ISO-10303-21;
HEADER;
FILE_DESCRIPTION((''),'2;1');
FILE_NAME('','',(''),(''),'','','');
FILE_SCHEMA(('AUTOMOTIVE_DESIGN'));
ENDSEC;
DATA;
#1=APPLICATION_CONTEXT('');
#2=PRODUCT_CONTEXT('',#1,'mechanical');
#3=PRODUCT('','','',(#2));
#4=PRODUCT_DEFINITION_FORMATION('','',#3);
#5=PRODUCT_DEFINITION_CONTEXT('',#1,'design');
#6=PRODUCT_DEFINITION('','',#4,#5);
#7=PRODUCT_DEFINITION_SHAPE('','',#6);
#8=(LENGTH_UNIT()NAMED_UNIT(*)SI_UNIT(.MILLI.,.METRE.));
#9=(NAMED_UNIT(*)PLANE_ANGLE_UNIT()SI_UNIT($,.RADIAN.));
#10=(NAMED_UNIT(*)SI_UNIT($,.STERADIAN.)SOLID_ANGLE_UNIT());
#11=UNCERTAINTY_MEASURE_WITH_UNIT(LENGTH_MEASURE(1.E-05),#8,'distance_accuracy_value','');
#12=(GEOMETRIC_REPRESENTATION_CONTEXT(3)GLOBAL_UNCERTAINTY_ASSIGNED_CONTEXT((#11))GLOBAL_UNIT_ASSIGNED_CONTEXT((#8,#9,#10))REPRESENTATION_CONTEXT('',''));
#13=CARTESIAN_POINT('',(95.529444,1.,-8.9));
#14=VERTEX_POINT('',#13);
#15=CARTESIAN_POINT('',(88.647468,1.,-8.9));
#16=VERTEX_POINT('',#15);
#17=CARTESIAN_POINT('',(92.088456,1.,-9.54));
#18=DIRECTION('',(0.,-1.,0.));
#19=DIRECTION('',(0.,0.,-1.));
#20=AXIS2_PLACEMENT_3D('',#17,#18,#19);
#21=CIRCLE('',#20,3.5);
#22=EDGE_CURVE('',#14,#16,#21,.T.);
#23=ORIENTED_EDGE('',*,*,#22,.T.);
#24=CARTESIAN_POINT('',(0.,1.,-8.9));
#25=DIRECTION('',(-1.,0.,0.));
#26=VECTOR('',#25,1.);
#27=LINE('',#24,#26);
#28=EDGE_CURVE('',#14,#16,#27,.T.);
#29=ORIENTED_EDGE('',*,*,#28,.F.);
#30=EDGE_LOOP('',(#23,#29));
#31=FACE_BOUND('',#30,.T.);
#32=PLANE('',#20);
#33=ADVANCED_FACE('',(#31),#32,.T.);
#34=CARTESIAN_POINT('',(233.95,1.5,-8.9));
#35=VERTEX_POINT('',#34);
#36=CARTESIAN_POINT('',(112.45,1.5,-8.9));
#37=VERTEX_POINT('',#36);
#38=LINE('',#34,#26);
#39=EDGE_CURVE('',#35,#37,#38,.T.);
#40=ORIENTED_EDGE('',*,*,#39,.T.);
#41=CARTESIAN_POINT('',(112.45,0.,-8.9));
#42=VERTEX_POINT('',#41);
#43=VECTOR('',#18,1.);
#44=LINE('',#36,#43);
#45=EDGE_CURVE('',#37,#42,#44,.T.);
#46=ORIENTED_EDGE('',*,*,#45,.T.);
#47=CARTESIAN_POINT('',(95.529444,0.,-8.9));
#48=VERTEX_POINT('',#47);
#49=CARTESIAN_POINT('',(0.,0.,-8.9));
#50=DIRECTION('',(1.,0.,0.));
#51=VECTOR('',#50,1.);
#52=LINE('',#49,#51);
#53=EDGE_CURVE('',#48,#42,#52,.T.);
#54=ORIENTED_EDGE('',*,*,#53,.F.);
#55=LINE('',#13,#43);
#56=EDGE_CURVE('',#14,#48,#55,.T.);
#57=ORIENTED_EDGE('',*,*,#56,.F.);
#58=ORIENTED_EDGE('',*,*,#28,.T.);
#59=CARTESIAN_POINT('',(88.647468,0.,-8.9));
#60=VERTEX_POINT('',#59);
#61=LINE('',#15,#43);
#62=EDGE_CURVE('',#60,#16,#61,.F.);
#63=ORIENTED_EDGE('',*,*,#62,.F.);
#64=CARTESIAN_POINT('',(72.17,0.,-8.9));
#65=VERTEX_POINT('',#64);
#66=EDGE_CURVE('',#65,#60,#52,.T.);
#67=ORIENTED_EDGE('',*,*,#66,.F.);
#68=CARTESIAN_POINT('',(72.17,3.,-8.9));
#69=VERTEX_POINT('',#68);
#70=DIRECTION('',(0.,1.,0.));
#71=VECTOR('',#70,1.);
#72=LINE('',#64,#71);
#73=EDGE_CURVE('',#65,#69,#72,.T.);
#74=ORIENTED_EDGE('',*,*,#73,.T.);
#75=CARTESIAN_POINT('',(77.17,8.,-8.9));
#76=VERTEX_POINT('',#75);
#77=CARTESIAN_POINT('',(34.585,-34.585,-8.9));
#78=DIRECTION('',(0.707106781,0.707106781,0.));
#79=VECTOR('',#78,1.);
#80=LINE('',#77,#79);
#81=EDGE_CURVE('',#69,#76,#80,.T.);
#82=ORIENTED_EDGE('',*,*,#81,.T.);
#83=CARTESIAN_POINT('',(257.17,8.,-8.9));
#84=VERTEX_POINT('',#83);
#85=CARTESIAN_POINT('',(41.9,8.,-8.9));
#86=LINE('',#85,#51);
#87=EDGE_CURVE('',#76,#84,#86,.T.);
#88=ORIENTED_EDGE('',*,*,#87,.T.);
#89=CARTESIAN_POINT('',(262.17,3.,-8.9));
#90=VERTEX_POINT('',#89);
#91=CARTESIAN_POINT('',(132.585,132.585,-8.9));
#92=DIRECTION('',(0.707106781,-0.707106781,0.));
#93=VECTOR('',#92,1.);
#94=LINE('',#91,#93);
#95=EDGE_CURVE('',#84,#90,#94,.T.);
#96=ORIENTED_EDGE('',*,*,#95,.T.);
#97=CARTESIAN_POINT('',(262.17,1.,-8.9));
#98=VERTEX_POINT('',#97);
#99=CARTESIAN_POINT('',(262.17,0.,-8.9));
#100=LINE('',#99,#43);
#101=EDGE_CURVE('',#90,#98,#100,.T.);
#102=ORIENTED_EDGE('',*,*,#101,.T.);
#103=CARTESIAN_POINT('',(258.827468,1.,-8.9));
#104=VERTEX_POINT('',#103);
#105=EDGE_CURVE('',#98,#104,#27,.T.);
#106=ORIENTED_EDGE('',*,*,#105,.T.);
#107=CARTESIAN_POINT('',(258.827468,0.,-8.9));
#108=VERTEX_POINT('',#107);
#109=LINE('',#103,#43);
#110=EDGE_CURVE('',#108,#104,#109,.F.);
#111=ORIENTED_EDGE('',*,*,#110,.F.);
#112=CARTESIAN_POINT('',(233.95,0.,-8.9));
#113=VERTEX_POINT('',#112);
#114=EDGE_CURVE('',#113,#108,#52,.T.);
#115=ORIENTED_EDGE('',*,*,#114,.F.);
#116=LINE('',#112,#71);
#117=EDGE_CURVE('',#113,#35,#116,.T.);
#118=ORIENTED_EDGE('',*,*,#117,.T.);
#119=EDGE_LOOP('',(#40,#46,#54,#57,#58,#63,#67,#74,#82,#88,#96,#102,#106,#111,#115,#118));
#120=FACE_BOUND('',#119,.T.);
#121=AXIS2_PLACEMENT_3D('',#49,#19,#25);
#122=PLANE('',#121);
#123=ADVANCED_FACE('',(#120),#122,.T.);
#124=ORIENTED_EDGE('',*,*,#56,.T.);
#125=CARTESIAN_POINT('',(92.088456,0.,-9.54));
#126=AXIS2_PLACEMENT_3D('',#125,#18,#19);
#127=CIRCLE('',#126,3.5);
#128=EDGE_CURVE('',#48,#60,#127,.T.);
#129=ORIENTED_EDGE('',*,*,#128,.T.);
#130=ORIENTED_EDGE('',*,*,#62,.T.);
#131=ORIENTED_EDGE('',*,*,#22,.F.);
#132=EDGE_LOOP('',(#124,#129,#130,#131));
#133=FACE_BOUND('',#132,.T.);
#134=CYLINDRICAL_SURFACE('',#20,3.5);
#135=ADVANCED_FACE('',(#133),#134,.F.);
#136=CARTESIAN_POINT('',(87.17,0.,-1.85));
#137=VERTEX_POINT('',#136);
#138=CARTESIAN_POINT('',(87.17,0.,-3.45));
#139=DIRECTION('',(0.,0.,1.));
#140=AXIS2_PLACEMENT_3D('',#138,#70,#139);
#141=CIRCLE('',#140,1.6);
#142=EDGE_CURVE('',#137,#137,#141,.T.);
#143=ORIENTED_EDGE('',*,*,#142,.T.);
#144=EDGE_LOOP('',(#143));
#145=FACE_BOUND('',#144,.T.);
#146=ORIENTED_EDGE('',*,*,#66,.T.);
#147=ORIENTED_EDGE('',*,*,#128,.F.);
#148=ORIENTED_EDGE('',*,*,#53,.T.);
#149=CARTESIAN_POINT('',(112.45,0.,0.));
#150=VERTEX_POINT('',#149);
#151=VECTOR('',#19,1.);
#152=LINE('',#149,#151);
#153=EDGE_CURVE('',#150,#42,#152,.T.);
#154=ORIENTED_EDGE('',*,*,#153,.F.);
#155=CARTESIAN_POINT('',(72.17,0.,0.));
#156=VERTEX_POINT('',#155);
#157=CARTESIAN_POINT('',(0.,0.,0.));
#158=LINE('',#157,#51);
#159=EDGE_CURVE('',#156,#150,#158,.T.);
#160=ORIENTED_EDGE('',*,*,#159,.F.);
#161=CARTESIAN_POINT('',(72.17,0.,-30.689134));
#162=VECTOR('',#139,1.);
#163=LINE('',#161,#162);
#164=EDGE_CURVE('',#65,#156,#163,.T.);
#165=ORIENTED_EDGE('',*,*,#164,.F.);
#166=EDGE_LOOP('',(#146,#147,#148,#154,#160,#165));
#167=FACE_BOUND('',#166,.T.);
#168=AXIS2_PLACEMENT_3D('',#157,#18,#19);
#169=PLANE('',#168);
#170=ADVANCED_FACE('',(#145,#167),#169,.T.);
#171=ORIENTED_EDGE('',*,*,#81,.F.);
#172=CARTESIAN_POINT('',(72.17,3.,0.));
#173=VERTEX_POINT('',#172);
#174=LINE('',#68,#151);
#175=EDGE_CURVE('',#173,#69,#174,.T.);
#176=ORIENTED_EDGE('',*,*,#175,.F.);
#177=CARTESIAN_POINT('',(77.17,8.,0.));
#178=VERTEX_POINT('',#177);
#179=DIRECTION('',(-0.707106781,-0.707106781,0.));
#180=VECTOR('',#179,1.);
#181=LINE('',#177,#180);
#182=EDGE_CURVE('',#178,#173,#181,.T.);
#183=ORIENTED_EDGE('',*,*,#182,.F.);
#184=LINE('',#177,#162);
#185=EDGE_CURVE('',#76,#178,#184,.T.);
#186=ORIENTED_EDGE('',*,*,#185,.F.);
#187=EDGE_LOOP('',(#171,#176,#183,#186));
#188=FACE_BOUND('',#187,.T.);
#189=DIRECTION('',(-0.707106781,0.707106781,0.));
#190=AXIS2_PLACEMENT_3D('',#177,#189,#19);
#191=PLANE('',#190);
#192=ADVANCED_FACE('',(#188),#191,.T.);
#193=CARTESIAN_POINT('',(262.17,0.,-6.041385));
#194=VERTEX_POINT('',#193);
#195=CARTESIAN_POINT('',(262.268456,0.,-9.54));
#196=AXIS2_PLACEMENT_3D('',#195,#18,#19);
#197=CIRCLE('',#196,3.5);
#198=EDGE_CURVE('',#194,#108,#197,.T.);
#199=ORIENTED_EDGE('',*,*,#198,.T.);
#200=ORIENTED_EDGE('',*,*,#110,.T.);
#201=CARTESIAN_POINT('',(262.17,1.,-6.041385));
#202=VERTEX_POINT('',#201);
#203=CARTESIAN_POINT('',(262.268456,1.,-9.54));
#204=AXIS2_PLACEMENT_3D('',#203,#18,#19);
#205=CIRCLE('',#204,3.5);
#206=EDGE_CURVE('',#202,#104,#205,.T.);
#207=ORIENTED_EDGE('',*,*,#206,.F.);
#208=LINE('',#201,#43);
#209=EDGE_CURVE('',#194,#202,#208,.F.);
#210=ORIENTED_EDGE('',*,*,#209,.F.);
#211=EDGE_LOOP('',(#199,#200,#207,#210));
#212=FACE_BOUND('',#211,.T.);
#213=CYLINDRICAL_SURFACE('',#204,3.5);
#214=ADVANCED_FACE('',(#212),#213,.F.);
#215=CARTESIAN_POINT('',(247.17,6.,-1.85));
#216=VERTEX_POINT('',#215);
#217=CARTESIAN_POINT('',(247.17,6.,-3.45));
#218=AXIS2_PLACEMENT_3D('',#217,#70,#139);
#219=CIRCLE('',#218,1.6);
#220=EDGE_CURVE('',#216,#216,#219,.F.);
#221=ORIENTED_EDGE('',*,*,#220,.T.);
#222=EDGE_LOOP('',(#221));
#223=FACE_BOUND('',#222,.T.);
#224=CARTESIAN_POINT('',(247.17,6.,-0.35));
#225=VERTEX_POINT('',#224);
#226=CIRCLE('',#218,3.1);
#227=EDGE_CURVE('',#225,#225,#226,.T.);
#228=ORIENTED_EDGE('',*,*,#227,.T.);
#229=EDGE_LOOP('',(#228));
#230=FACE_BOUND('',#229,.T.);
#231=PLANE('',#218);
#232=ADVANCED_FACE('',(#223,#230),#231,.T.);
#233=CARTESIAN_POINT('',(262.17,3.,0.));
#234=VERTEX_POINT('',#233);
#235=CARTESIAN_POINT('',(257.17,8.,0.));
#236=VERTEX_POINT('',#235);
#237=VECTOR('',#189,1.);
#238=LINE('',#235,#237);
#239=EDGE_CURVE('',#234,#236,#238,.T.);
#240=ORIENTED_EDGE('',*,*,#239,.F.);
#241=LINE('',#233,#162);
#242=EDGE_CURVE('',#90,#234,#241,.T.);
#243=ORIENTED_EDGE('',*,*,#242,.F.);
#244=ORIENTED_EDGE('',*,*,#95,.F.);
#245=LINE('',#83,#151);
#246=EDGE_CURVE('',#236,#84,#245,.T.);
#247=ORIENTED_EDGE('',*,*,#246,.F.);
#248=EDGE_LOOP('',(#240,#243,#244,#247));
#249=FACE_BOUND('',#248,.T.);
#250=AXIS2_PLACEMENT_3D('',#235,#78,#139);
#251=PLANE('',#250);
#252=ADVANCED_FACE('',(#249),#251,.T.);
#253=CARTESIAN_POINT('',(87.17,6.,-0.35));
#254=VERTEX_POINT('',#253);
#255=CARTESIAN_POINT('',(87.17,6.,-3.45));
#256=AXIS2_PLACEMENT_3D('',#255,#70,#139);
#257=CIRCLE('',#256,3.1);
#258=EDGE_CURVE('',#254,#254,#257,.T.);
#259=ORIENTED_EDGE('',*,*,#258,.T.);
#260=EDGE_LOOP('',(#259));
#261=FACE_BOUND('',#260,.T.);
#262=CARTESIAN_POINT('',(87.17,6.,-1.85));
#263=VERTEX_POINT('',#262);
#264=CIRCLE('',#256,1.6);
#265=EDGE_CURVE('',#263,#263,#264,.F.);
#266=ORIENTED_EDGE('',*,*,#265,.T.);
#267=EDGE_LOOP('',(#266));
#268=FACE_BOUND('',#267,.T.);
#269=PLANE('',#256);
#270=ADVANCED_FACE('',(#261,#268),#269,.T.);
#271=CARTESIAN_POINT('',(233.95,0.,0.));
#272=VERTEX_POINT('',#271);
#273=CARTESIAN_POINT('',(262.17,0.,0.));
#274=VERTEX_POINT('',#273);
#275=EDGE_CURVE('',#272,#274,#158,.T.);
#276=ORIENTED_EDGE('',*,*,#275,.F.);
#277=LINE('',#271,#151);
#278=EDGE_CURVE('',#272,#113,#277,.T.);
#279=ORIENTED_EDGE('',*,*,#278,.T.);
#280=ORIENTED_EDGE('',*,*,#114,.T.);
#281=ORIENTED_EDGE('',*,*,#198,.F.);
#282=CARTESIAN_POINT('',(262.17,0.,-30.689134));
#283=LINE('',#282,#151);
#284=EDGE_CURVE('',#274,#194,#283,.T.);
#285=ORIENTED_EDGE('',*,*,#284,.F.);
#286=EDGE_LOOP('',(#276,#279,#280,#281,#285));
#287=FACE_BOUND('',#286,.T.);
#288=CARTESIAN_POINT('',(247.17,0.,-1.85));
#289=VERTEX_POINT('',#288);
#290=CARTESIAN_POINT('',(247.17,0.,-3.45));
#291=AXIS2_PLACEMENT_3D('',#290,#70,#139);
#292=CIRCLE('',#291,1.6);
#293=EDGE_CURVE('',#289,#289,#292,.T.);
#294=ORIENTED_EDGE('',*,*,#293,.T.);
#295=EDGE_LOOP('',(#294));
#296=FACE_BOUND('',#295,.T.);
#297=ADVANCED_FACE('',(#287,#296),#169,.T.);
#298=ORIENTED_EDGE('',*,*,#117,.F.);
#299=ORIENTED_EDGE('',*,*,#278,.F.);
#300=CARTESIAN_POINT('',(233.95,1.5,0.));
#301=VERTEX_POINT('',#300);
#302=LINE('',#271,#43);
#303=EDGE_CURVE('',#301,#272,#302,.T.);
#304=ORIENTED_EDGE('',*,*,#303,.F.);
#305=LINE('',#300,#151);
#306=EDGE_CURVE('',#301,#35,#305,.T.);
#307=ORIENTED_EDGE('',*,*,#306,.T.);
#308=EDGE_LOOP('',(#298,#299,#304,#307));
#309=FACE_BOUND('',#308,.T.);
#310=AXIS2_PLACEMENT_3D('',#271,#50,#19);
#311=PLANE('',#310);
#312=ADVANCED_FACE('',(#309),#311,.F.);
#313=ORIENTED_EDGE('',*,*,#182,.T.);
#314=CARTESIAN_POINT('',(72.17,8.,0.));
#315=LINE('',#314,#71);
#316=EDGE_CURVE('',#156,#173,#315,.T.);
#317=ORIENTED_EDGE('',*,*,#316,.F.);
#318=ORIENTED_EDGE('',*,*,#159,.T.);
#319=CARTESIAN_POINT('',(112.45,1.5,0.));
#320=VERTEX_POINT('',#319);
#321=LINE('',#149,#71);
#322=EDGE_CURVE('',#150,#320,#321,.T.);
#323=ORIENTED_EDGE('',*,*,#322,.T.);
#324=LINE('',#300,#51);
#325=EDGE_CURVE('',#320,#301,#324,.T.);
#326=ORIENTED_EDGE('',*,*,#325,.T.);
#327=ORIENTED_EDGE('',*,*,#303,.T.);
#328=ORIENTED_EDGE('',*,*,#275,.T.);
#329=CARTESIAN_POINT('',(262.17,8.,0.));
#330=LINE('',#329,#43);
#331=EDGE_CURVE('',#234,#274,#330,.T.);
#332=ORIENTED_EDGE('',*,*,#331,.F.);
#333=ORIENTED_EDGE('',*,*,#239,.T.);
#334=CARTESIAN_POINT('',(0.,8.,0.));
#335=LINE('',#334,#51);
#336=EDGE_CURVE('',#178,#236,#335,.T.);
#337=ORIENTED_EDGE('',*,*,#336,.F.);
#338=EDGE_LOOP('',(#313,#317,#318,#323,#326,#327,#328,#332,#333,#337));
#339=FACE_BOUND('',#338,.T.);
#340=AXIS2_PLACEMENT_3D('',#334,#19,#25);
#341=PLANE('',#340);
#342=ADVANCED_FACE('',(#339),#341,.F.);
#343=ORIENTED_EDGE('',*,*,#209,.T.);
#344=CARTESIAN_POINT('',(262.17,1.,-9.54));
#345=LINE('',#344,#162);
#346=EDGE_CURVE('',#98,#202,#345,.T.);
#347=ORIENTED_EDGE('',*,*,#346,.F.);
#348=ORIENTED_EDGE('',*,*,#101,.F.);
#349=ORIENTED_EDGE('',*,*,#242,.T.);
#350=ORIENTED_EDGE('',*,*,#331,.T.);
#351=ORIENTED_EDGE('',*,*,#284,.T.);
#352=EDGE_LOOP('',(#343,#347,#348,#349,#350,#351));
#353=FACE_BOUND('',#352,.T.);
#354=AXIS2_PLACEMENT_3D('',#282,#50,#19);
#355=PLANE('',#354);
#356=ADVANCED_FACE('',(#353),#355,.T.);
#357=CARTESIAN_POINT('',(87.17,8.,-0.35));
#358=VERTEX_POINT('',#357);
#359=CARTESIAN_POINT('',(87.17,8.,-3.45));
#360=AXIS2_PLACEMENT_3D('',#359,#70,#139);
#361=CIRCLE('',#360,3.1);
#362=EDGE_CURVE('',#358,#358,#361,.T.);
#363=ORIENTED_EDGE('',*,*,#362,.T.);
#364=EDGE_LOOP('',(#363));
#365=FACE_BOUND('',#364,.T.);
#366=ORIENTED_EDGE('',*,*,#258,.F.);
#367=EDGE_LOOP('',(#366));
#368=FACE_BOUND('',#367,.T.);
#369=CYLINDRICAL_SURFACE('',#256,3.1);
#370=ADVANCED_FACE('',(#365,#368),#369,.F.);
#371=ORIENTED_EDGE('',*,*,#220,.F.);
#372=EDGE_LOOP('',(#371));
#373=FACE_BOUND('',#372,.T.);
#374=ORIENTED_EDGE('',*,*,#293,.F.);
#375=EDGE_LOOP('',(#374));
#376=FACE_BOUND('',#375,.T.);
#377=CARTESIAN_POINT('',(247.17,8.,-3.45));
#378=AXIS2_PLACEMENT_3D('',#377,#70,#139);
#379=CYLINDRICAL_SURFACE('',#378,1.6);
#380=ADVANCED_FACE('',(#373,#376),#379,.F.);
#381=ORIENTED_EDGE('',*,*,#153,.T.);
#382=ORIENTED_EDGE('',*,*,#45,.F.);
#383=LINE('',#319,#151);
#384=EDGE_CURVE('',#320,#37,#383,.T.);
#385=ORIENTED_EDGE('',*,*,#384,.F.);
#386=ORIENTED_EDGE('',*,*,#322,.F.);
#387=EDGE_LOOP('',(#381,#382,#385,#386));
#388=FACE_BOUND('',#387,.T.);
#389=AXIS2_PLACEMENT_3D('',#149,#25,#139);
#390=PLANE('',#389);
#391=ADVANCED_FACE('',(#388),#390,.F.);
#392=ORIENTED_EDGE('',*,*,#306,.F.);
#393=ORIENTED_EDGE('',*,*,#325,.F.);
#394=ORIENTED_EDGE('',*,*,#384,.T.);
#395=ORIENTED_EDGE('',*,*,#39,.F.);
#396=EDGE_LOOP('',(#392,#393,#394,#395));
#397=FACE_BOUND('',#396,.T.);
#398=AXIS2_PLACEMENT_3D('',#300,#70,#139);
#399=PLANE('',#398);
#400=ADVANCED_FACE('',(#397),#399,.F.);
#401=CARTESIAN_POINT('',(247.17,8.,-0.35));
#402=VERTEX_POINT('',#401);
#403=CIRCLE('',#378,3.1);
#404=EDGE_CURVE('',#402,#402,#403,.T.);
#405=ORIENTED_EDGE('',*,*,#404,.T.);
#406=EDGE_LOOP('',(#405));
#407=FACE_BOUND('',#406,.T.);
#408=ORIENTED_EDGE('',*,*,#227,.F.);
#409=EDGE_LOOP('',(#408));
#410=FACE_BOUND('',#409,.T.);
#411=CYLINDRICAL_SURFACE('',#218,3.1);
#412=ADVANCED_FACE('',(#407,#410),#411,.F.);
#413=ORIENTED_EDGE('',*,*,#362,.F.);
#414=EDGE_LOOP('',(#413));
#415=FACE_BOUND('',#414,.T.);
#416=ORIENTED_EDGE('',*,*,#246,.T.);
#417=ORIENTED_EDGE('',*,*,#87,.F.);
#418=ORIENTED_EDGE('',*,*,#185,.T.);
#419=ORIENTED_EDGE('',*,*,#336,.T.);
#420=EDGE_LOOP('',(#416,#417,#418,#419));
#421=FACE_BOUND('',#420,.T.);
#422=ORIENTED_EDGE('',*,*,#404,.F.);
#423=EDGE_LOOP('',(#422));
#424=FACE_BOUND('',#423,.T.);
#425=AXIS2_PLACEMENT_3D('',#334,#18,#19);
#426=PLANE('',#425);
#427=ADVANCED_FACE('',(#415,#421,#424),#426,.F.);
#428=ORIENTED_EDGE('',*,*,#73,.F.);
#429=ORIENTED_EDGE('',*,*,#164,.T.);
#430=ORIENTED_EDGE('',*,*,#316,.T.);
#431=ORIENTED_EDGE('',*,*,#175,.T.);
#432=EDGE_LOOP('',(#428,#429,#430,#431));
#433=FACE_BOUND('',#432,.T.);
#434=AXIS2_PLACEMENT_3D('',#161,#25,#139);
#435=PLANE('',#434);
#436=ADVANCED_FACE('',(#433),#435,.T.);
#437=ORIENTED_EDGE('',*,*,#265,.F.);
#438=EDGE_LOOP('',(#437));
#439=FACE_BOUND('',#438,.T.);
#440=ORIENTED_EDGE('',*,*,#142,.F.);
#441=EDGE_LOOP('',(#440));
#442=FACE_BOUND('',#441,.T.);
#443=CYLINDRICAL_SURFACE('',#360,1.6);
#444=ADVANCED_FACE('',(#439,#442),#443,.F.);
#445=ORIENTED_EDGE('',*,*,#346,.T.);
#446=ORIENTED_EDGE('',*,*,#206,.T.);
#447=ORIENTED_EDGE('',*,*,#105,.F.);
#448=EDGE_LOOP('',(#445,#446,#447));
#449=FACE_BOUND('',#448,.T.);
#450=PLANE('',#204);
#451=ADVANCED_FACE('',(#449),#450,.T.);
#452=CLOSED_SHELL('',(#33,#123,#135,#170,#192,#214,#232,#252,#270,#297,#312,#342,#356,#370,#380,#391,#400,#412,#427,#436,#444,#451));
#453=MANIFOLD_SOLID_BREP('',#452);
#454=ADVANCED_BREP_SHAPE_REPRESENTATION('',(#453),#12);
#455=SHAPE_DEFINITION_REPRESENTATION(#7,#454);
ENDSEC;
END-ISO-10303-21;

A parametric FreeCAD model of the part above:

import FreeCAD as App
import Part
import Sketcher


def edges_at(feature, points):
    """Names of the edges that pass closest to the given points."""
    edges = feature.Shape.Edges
    near = lambda p: min(range(len(edges)), key=lambda i: edges[i].distToShape(Part.Vertex(*p))[0])
    return sorted({f"Edge{near(p) + 1}" for p in points})

doc = App.newDocument("Part")
body = doc.addObject("PartDesign::Body", "Body")

sketch1 = body.newObject("Sketcher::SketchObject", "Sketch")
sketch1.AttachmentSupport = (doc.getObject("XZ_Plane"), [""])
sketch1.MapMode = "FlatFace"
sketch1.addGeometry([
    Part.LineSegment(App.Vector(0, -117, 0), App.Vector(0, 0, 0)),
    Part.LineSegment(App.Vector(0, 0, 0), App.Vector(337, 0, 0)),
    Part.LineSegment(App.Vector(337, 0, 0), App.Vector(337, -117, 0)),
    Part.LineSegment(App.Vector(337, -117, 0), App.Vector(0, -117, 0)),
    Part.LineSegment(App.Vector(331, -7, 0), App.Vector(7, -7, 0)),
    Part.LineSegment(App.Vector(7, -7, 0), App.Vector(7, -110, 0)),
    Part.LineSegment(App.Vector(7, -110, 0), App.Vector(331, -110, 0)),
    Part.LineSegment(App.Vector(331, -110, 0), App.Vector(331, -7, 0)),
], False)
sketch1.addConstraint([
    Sketcher.Constraint("Coincident", 0, 2, 1, 1),
    Sketcher.Constraint("Coincident", 1, 2, 2, 1),
    Sketcher.Constraint("Coincident", 2, 2, 3, 1),
    Sketcher.Constraint("Coincident", 3, 2, 0, 1),
    Sketcher.Constraint("Coincident", 4, 2, 5, 1),
    Sketcher.Constraint("Coincident", 5, 2, 6, 1),
    Sketcher.Constraint("Coincident", 6, 2, 7, 1),
    Sketcher.Constraint("Coincident", 7, 2, 4, 1),
    Sketcher.Constraint("Vertical", 0),
    Sketcher.Constraint("Horizontal", 1),
    Sketcher.Constraint("Vertical", 2),
    Sketcher.Constraint("Horizontal", 3),
    Sketcher.Constraint("Horizontal", 4),
    Sketcher.Constraint("Vertical", 5),
    Sketcher.Constraint("Horizontal", 6),
    Sketcher.Constraint("Vertical", 7),
    Sketcher.Constraint("Coincident", 0, 2, -1, 1),
    Sketcher.Constraint("DistanceX", 1, 1, 1, 2, 337.35),
    Sketcher.Constraint("DistanceX", 4, 2, 4, 1, 324.05),
    Sketcher.Constraint("DistanceY", 0, 1, 0, 2, 116.87),
    Sketcher.Constraint("DistanceY", 5, 2, 5, 1, 103.07),
    Sketcher.Constraint("DistanceX", -1, 1, 4, 2, 6.9),
    Sketcher.Constraint("DistanceY", 4, 2, -1, 1, 6.9),
])
pad1 = body.newObject("PartDesign::Pad", "Pad")
pad1.Profile = sketch1
pad1.Length = 8
pad1.Reversed = True
doc.recompute()

fillet = body.newObject("PartDesign::Fillet", "Fillet")
fillet.Base = (pad1, edges_at(pad1, [
    (0, 4, -116.87),
    (337.35, 4, -116.87),
    (337.35, 4, 0),
    (0, 4, 0),
]))
fillet.Radius = 5

sketch2 = body.newObject("Sketcher::SketchObject", "Sketch001")
sketch2.AttachmentSupport = (doc.getObject("XZ_Plane"), [""])
sketch2.MapMode = "FlatFace"
sketch2.AttachmentOffset = App.Placement(App.Vector(0, 0, -8), App.Rotation())
sketch2.addGeometry([
    Part.Circle(App.Vector(3.5, -98.4, 0), App.Vector(0, 0, 1), 1.6),
    Part.Circle(App.Vector(87.2, -113.4, 0), App.Vector(0, 0, 1), 1.6),
    Part.Circle(App.Vector(247.2, -113.4, 0), App.Vector(0, 0, 1), 1.6),
    Part.Circle(App.Vector(334.1, -98.4, 0), App.Vector(0, 0, 1), 1.6),
    Part.Circle(App.Vector(334.1, -18.4, 0), App.Vector(0, 0, 1), 1.6),
    Part.Circle(App.Vector(247.2, -3.5, 0), App.Vector(0, 0, 1), 1.6),
    Part.Circle(App.Vector(87.2, -3.5, 0), App.Vector(0, 0, 1), 1.6),
    Part.Circle(App.Vector(3.5, -18.4, 0), App.Vector(0, 0, 1), 1.6),
], False)
sketch2.addConstraint([
    Sketcher.Constraint("Equal", 0, 1),
    Sketcher.Constraint("Equal", 1, 2),
    Sketcher.Constraint("Equal", 2, 3),
    Sketcher.Constraint("Equal", 3, 4),
    Sketcher.Constraint("Equal", 4, 5),
    Sketcher.Constraint("Equal", 5, 6),
    Sketcher.Constraint("Equal", 6, 7),
    Sketcher.Constraint("Horizontal", 1, 3, 2, 3),
    Sketcher.Constraint("Horizontal", 0, 3, 3, 3),
    Sketcher.Constraint("Horizontal", 5, 3, 6, 3),
    Sketcher.Constraint("Horizontal", 4, 3, 7, 3),
    Sketcher.Constraint("Vertical", 3, 3, 4, 3),
    Sketcher.Constraint("Vertical", 2, 3, 5, 3),
    Sketcher.Constraint("Vertical", 1, 3, 6, 3),
    Sketcher.Constraint("Vertical", 0, 3, 7, 3),
    Sketcher.Constraint("Diameter", 0, 3.2),
    Sketcher.Constraint("DistanceX", 1, 3, 2, 3, 160.0),
    Sketcher.Constraint("DistanceY", 3, 3, 4, 3, 80.0),
    Sketcher.Constraint("DistanceX", 0, 3, 3, 3, 330.7),
    Sketcher.Constraint("DistanceX", -1, 1, 0, 3, 3.45),
    Sketcher.Constraint("DistanceX", -1, 1, 1, 3, 87.17),
    Sketcher.Constraint("DistanceY", 1, 3, -1, 1, 113.42),
    Sketcher.Constraint("DistanceY", 5, 3, -1, 1, 3.45),
    Sketcher.Constraint("DistanceY", 0, 3, -1, 1, 98.435),
])
doc.recompute()
hole = body.newObject("PartDesign::Hole", "Hole")
hole.Profile = sketch2
hole.ThreadType = "None"
hole.Diameter = 3.2
hole.DepthType = "ThroughAll"
hole.Reversed = True

sketch3 = body.newObject("Sketcher::SketchObject", "Sketch002")
sketch3.AttachmentSupport = (doc.getObject("XY_Plane"), [""])
sketch3.MapMode = "FlatFace"
sketch3.AttachmentOffset = App.Placement(App.Vector(0, 0, -109.97), App.Rotation())
sketch3.addGeometry([
    Part.LineSegment(App.Vector(41.9, 1.5, 0), App.Vector(41.9, 0, 0)),
    Part.LineSegment(App.Vector(41.9, 0, 0), App.Vector(73.9, 0, 0)),
    Part.LineSegment(App.Vector(73.9, 0, 0), App.Vector(73.9, 1.5, 0)),
    Part.LineSegment(App.Vector(73.9, 1.5, 0), App.Vector(41.9, 1.5, 0)),
], False)
sketch3.addConstraint([
    Sketcher.Constraint("Coincident", 0, 2, 1, 1),
    Sketcher.Constraint("Coincident", 1, 2, 2, 1),
    Sketcher.Constraint("Coincident", 2, 2, 3, 1),
    Sketcher.Constraint("Coincident", 3, 2, 0, 1),
    Sketcher.Constraint("Vertical", 0),
    Sketcher.Constraint("Horizontal", 1),
    Sketcher.Constraint("Vertical", 2),
    Sketcher.Constraint("Horizontal", 3),
    Sketcher.Constraint("PointOnObject", 0, 2, -1),
    Sketcher.Constraint("DistanceX", 1, 1, 1, 2, 32.0),
    Sketcher.Constraint("DistanceY", 0, 2, 0, 1, 1.5),
    Sketcher.Constraint("DistanceX", -1, 1, 0, 2, 41.9),
])
pocket1 = body.newObject("PartDesign::Pocket", "Pocket")
pocket1.Profile = sketch3
pocket1.Type = "ThroughAll"

sketch4 = body.newObject("Sketcher::SketchObject", "Sketch003")
sketch4.AttachmentSupport = (doc.getObject("XY_Plane"), [""])
sketch4.MapMode = "FlatFace"
sketch4.AttachmentOffset = App.Placement(App.Vector(0, 0, -109.97), App.Rotation())
sketch4.addGeometry([
    Part.LineSegment(App.Vector(38.9, 8, 0), App.Vector(38.9, 0, 0)),
    Part.LineSegment(App.Vector(38.9, 0, 0), App.Vector(41.9, 0, 0)),
    Part.LineSegment(App.Vector(41.9, 0, 0), App.Vector(41.9, 8, 0)),
    Part.LineSegment(App.Vector(41.9, 8, 0), App.Vector(38.9, 8, 0)),
], False)
sketch4.addConstraint([
    Sketcher.Constraint("Coincident", 0, 2, 1, 1),
    Sketcher.Constraint("Coincident", 1, 2, 2, 1),
    Sketcher.Constraint("Coincident", 2, 2, 3, 1),
    Sketcher.Constraint("Coincident", 3, 2, 0, 1),
    Sketcher.Constraint("Vertical", 0),
    Sketcher.Constraint("Horizontal", 1),
    Sketcher.Constraint("Vertical", 2),
    Sketcher.Constraint("Horizontal", 3),
    Sketcher.Constraint("PointOnObject", 0, 2, -1),
    Sketcher.Constraint("DistanceX", 1, 1, 1, 2, 3.0),
    Sketcher.Constraint("DistanceY", 0, 2, 0, 1, 8.0),
    Sketcher.Constraint("DistanceX", -1, 1, 0, 2, 38.9),
])
pad2 = body.newObject("PartDesign::Pad", "Pad001")
pad2.Profile = sketch4
pad2.Type = "UpToFirst"

sketch5 = body.newObject("Sketcher::SketchObject", "Sketch004")
sketch5.AttachmentSupport = (doc.getObject("XY_Plane"), [""])
sketch5.MapMode = "FlatFace"
sketch5.AttachmentOffset = App.Placement(App.Vector(0, 0, -109.97), App.Rotation())
sketch5.addGeometry([
    Part.LineSegment(App.Vector(74, 8, 0), App.Vector(74, 0, 0)),
    Part.LineSegment(App.Vector(74, 0, 0), App.Vector(331, 0, 0)),
    Part.LineSegment(App.Vector(331, 0, 0), App.Vector(331, 8, 0)),
    Part.LineSegment(App.Vector(331, 8, 0), App.Vector(74, 8, 0)),
], False)
sketch5.addConstraint([
    Sketcher.Constraint("Coincident", 0, 2, 1, 1),
    Sketcher.Constraint("Coincident", 1, 2, 2, 1),
    Sketcher.Constraint("Coincident", 2, 2, 3, 1),
    Sketcher.Constraint("Coincident", 3, 2, 0, 1),
    Sketcher.Constraint("Vertical", 0),
    Sketcher.Constraint("Horizontal", 1),
    Sketcher.Constraint("Vertical", 2),
    Sketcher.Constraint("Horizontal", 3),
    Sketcher.Constraint("PointOnObject", 0, 2, -1),
    Sketcher.Constraint("DistanceY", 0, 2, 0, 1, 8.0),
    Sketcher.Constraint("DistanceX", 1, 1, 1, 2, 257.05),
    Sketcher.Constraint("DistanceX", -1, 1, 0, 2, 73.9),
])
pad3 = body.newObject("PartDesign::Pad", "Pad002")
pad3.Profile = sketch5
pad3.Length = 4

sketch6 = body.newObject("Sketcher::SketchObject", "Sketch005")
sketch6.AttachmentSupport = (doc.getObject("XZ_Plane"), [""])
sketch6.MapMode = "FlatFace"
sketch6.addGeometry([
    Part.LineSegment(App.Vector(73.9, -106, 0), App.Vector(73.9, -110, 0)),
    Part.LineSegment(App.Vector(73.9, -110, 0), App.Vector(330.9, -110, 0)),
    Part.LineSegment(App.Vector(330.9, -110, 0), App.Vector(330.9, -106, 0)),
    Part.LineSegment(App.Vector(330.9, -106, 0), App.Vector(73.9, -106, 0)),
], False)
sketch6.addConstraint([
    Sketcher.Constraint("Coincident", 0, 2, 1, 1),
    Sketcher.Constraint("Coincident", 1, 2, 2, 1),
    Sketcher.Constraint("Coincident", 2, 2, 3, 1),
    Sketcher.Constraint("Coincident", 3, 2, 0, 1),
    Sketcher.Constraint("Vertical", 0),
    Sketcher.Constraint("Horizontal", 1),
    Sketcher.Constraint("Vertical", 2),
    Sketcher.Constraint("Horizontal", 3),
    Sketcher.Constraint("DistanceY", 0, 2, 0, 1, 4.0),
    Sketcher.Constraint("DistanceX", 1, 1, 1, 2, 257.05),
    Sketcher.Constraint("DistanceX", -1, 1, 0, 2, 73.9),
    Sketcher.Constraint("DistanceY", 0, 2, -1, 1, 109.97),
])
pad4 = body.newObject("PartDesign::Pad", "Pad003")
pad4.Profile = sketch6
pad4.Length = 3

sketch7 = body.newObject("Sketcher::SketchObject", "Sketch006")
sketch7.AttachmentSupport = (doc.getObject("YZ_Plane"), [""])
sketch7.MapMode = "FlatFace"
sketch7.AttachmentOffset = App.Placement(App.Vector(0, 0, 330.95), App.Rotation())
sketch7.addGeometry([
    Part.LineSegment(App.Vector(8, -106, 0), App.Vector(-3, -106, 0)),
    Part.LineSegment(App.Vector(-3, -106, 0), App.Vector(-3, -7, 0)),
    Part.LineSegment(App.Vector(-3, -7, 0), App.Vector(8, -7, 0)),
    Part.LineSegment(App.Vector(8, -7, 0), App.Vector(8, -106, 0)),
], False)
sketch7.addConstraint([
    Sketcher.Constraint("Coincident", 0, 2, 1, 1),
    Sketcher.Constraint("Coincident", 1, 2, 2, 1),
    Sketcher.Constraint("Coincident", 2, 2, 3, 1),
    Sketcher.Constraint("Coincident", 3, 2, 0, 1),
    Sketcher.Constraint("Horizontal", 0),
    Sketcher.Constraint("Vertical", 1),
    Sketcher.Constraint("Horizontal", 2),
    Sketcher.Constraint("Vertical", 3),
    Sketcher.Constraint("DistanceX", 0, 2, 0, 1, 11.0),
    Sketcher.Constraint("DistanceX", 0, 2, -1, 1, 3.0),
    Sketcher.Constraint("DistanceY", 1, 1, 1, 2, 99.07),
    Sketcher.Constraint("DistanceY", 1, 2, -1, 1, 6.9),
])
pad5 = body.newObject("PartDesign::Pad", "Pad004")
pad5.Profile = sketch7
pad5.Length = 2
pad5.Reversed = True

sketch8 = body.newObject("Sketcher::SketchObject", "Sketch007")
sketch8.AttachmentSupport = (doc.getObject("XY_Plane"), [""])
sketch8.MapMode = "FlatFace"
sketch8.AttachmentOffset = App.Placement(App.Vector(0, 0, -105.97), App.Rotation())
sketch8.addGeometry([
    Part.LineSegment(App.Vector(286.9, 1.5, 0), App.Vector(286.9, -3, 0)),
    Part.LineSegment(App.Vector(286.9, -3, 0), App.Vector(328.9, -3, 0)),
    Part.LineSegment(App.Vector(328.9, -3, 0), App.Vector(328.9, 1.5, 0)),
    Part.LineSegment(App.Vector(328.9, 1.5, 0), App.Vector(286.9, 1.5, 0)),
], False)
sketch8.addConstraint([
    Sketcher.Constraint("Coincident", 0, 2, 1, 1),
    Sketcher.Constraint("Coincident", 1, 2, 2, 1),
    Sketcher.Constraint("Coincident", 2, 2, 3, 1),
    Sketcher.Constraint("Coincident", 3, 2, 0, 1),
    Sketcher.Constraint("Vertical", 0),
    Sketcher.Constraint("Horizontal", 1),
    Sketcher.Constraint("Vertical", 2),
    Sketcher.Constraint("Horizontal", 3),
    Sketcher.Constraint("DistanceX", 1, 1, 1, 2, 42.0),
    Sketcher.Constraint("DistanceY", 0, 2, 0, 1, 4.5),
    Sketcher.Constraint("DistanceY", 0, 2, -1, 1, 3.0),
    Sketcher.Constraint("DistanceX", -1, 1, 0, 2, 286.95),
])
pocket2 = body.newObject("PartDesign::Pocket", "Pocket001")
pocket2.Profile = sketch8
pocket2.Type = "ThroughAll"

sketch9 = body.newObject("Sketcher::SketchObject", "Sketch008")
sketch9.AttachmentSupport = (doc.getObject("XY_Plane"), [""])
sketch9.MapMode = "FlatFace"
sketch9.AttachmentOffset = App.Placement(App.Vector(0, 0, -6.9), App.Rotation())
sketch9.addGeometry([
    Part.LineSegment(App.Vector(233.9, 1.5, 0), App.Vector(233.9, 0, 0)),
    Part.LineSegment(App.Vector(233.9, 0, 0), App.Vector(112.5, 0, 0)),
    Part.LineSegment(App.Vector(112.5, 0, 0), App.Vector(112.5, 1.5, 0)),
    Part.LineSegment(App.Vector(112.5, 1.5, 0), App.Vector(233.9, 1.5, 0)),
], False)
sketch9.addConstraint([
    Sketcher.Constraint("Coincident", 0, 2, 1, 1),
    Sketcher.Constraint("Coincident", 1, 2, 2, 1),
    Sketcher.Constraint("Coincident", 2, 2, 3, 1),
    Sketcher.Constraint("Coincident", 3, 2, 0, 1),
    Sketcher.Constraint("Vertical", 0),
    Sketcher.Constraint("Horizontal", 1),
    Sketcher.Constraint("Vertical", 2),
    Sketcher.Constraint("Horizontal", 3),
    Sketcher.Constraint("PointOnObject", 0, 2, -1),
    Sketcher.Constraint("DistanceX", 1, 2, 1, 1, 121.5),
    Sketcher.Constraint("DistanceY", 0, 2, 0, 1, 1.5),
    Sketcher.Constraint("DistanceX", -1, 1, 0, 2, 233.95),
])
pocket3 = body.newObject("PartDesign::Pocket", "Pocket002")
pocket3.Profile = sketch9
pocket3.Type = "ThroughAll"
pocket3.Reversed = True

sketch10 = body.newObject("Sketcher::SketchObject", "Sketch009")
sketch10.AttachmentSupport = (doc.getObject("XY_Plane"), [""])
sketch10.MapMode = "FlatFace"
sketch10.AttachmentOffset = App.Placement(App.Vector(0, 0, -109.97), App.Rotation())
sketch10.addGeometry([
    Part.LineSegment(App.Vector(42, 8, 0), App.Vector(42, 2, 0)),
    Part.LineSegment(App.Vector(42, 2, 0), App.Vector(74, 2, 0)),
    Part.LineSegment(App.Vector(74, 2, 0), App.Vector(74, 8, 0)),
    Part.LineSegment(App.Vector(74, 8, 0), App.Vector(42, 8, 0)),
], False)
sketch10.addConstraint([
    Sketcher.Constraint("Coincident", 0, 2, 1, 1),
    Sketcher.Constraint("Coincident", 1, 2, 2, 1),
    Sketcher.Constraint("Coincident", 2, 2, 3, 1),
    Sketcher.Constraint("Coincident", 3, 2, 0, 1),
    Sketcher.Constraint("Vertical", 0),
    Sketcher.Constraint("Horizontal", 1),
    Sketcher.Constraint("Vertical", 2),
    Sketcher.Constraint("Horizontal", 3),
    Sketcher.Constraint("DistanceX", 1, 1, 1, 2, 32.0),
    Sketcher.Constraint("DistanceY", 0, 2, 0, 1, 6.5),
    Sketcher.Constraint("DistanceY", -1, 1, 2, 2, 8.0),
    Sketcher.Constraint("DistanceX", -1, 1, 0, 2, 41.9),
])
pad6 = body.newObject("PartDesign::Pad", "Pad005")
pad6.Profile = sketch10
pad6.Length = 4

sketch11 = body.newObject("Sketcher::SketchObject", "Sketch010")
sketch11.AttachmentSupport = (doc.getObject("YZ_Plane"), [""])
sketch11.MapMode = "FlatFace"
sketch11.AttachmentOffset = App.Placement(App.Vector(0, 0, 330.95), App.Rotation())
sketch11.addGeometry([
    Part.LineSegment(App.Vector(0, -6.9, 0), App.Vector(-3, -6.9, 0)),
    Part.LineSegment(App.Vector(-3, -6.9, 0), App.Vector(-3, -110, 0)),
    Part.LineSegment(App.Vector(-3, -110, 0), App.Vector(0, -110, 0)),
    Part.LineSegment(App.Vector(0, -110, 0), App.Vector(0, -6.9, 0)),
], False)
sketch11.addConstraint([
    Sketcher.Constraint("Coincident", 0, 2, 1, 1),
    Sketcher.Constraint("Coincident", 1, 2, 2, 1),
    Sketcher.Constraint("Coincident", 2, 2, 3, 1),
    Sketcher.Constraint("Coincident", 3, 2, 0, 1),
    Sketcher.Constraint("Horizontal", 0),
    Sketcher.Constraint("Vertical", 1),
    Sketcher.Constraint("Horizontal", 2),
    Sketcher.Constraint("Vertical", 3),
    Sketcher.Constraint("PointOnObject", 2, 2, -2),
    Sketcher.Constraint("DistanceX", 0, 2, 0, 1, 3.0),
    Sketcher.Constraint("DistanceY", 1, 2, 1, 1, 103.07),
    Sketcher.Constraint("DistanceY", 0, 2, -1, 1, 6.9),
])
pocket4 = body.newObject("PartDesign::Pocket", "Pocket003")
pocket4.Profile = sketch11
pocket4.Length = 0.1

sketch12 = body.newObject("Sketcher::SketchObject", "Sketch011")
sketch12.AttachmentSupport = (doc.getObject("XY_Plane"), [""])
sketch12.MapMode = "FlatFace"
sketch12.AttachmentOffset = App.Placement(App.Vector(0, 0, -6.9), App.Rotation())
sketch12.addGeometry([
    Part.LineSegment(App.Vector(233.9, 0, 0), App.Vector(233.9, 1.5, 0)),
    Part.LineSegment(App.Vector(233.9, 1.5, 0), App.Vector(112.5, 1.5, 0)),
    Part.LineSegment(App.Vector(112.5, 1.5, 0), App.Vector(112.5, 0, 0)),
    Part.LineSegment(App.Vector(112.5, 0, 0), App.Vector(41.9, 0, 0)),
    Part.LineSegment(App.Vector(41.9, 0, 0), App.Vector(41.9, 8, 0)),
    Part.LineSegment(App.Vector(41.9, 8, 0), App.Vector(328.9, 8, 0)),
    Part.LineSegment(App.Vector(328.9, 8, 0), App.Vector(328.9, 0, 0)),
    Part.LineSegment(App.Vector(328.9, 0, 0), App.Vector(233.9, 0, 0)),
], False)
sketch12.addConstraint([
    Sketcher.Constraint("Coincident", 0, 2, 1, 1),
    Sketcher.Constraint("Coincident", 1, 2, 2, 1),
    Sketcher.Constraint("Coincident", 2, 2, 3, 1),
    Sketcher.Constraint("Coincident", 3, 2, 4, 1),
    Sketcher.Constraint("Coincident", 4, 2, 5, 1),
    Sketcher.Constraint("Coincident", 5, 2, 6, 1),
    Sketcher.Constraint("Coincident", 6, 2, 7, 1),
    Sketcher.Constraint("Coincident", 7, 2, 0, 1),
    Sketcher.Constraint("Vertical", 0),
    Sketcher.Constraint("Horizontal", 1),
    Sketcher.Constraint("Vertical", 2),
    Sketcher.Constraint("Horizontal", 3),
    Sketcher.Constraint("Vertical", 4),
    Sketcher.Constraint("Horizontal", 5),
    Sketcher.Constraint("Vertical", 6),
    Sketcher.Constraint("Horizontal", 7),
    Sketcher.Constraint("PointOnObject", 2, 2, -1),
    Sketcher.Constraint("PointOnObject", 6, 2, -1),
    Sketcher.Constraint("DistanceX", 7, 2, 7, 1, 95.0),
    Sketcher.Constraint("DistanceY", 4, 1, 4, 2, 8.0),
    Sketcher.Constraint("DistanceX", 1, 2, 1, 1, 121.5),
    Sketcher.Constraint("DistanceY", 0, 1, 0, 2, 1.5),
    Sketcher.Constraint("DistanceX", 3, 2, 3, 1, 70.55),
    Sketcher.Constraint("DistanceX", -1, 1, 3, 2, 41.9),
])
pad7 = body.newObject("PartDesign::Pad", "Pad006")
pad7.Profile = sketch12
pad7.Length = 2
pad7.Reversed = True

sketch13 = body.newObject("Sketcher::SketchObject", "Sketch012")
sketch13.AttachmentSupport = (doc.getObject("XZ_Plane"), [""])
sketch13.MapMode = "FlatFace"
sketch13.addGeometry([
    Part.LineSegment(App.Vector(41.9, -6.9, 0), App.Vector(41.9, -8.9, 0)),
    Part.LineSegment(App.Vector(41.9, -8.9, 0), App.Vector(112.5, -8.9, 0)),
    Part.LineSegment(App.Vector(112.5, -8.9, 0), App.Vector(112.5, -6.9, 0)),
    Part.LineSegment(App.Vector(112.5, -6.9, 0), App.Vector(41.9, -6.9, 0)),
    Part.LineSegment(App.Vector(233.9, -6.9, 0), App.Vector(233.9, -8.9, 0)),
    Part.LineSegment(App.Vector(233.9, -8.9, 0), App.Vector(328.9, -8.9, 0)),
    Part.LineSegment(App.Vector(328.9, -8.9, 0), App.Vector(328.9, -6.9, 0)),
    Part.LineSegment(App.Vector(328.9, -6.9, 0), App.Vector(233.9, -6.9, 0)),
], False)
sketch13.addConstraint([
    Sketcher.Constraint("Coincident", 0, 2, 1, 1),
    Sketcher.Constraint("Coincident", 1, 2, 2, 1),
    Sketcher.Constraint("Coincident", 2, 2, 3, 1),
    Sketcher.Constraint("Coincident", 3, 2, 0, 1),
    Sketcher.Constraint("Coincident", 4, 2, 5, 1),
    Sketcher.Constraint("Coincident", 5, 2, 6, 1),
    Sketcher.Constraint("Coincident", 6, 2, 7, 1),
    Sketcher.Constraint("Coincident", 7, 2, 4, 1),
    Sketcher.Constraint("Vertical", 0),
    Sketcher.Constraint("Horizontal", 1),
    Sketcher.Constraint("Vertical", 2),
    Sketcher.Constraint("Horizontal", 3),
    Sketcher.Constraint("Vertical", 4),
    Sketcher.Constraint("Horizontal", 5),
    Sketcher.Constraint("Vertical", 6),
    Sketcher.Constraint("Horizontal", 7),
    Sketcher.Constraint("Horizontal", 1, 2, 4, 2),
    Sketcher.Constraint("Horizontal", 3, 2, 6, 2),
    Sketcher.Constraint("DistanceX", 5, 1, 5, 2, 95.0),
    Sketcher.Constraint("DistanceY", 0, 2, 0, 1, 2.0),
    Sketcher.Constraint("DistanceX", 1, 1, 1, 2, 70.55),
    Sketcher.Constraint("DistanceX", -1, 1, 0, 2, 41.9),
    Sketcher.Constraint("DistanceY", 0, 2, -1, 1, 8.9),
    Sketcher.Constraint("DistanceX", 1, 2, 4, 2, 121.5),
])
pad8 = body.newObject("PartDesign::Pad", "Pad007")
pad8.Profile = sketch13
pad8.Length = 3

sketch14 = body.newObject("Sketcher::SketchObject", "Sketch013")
sketch14.AttachmentSupport = (doc.getObject("XZ_Plane"), [""])
sketch14.MapMode = "FlatFace"
sketch14.AttachmentOffset = App.Placement(App.Vector(0, 0, 3), App.Rotation())
sketch14.addGeometry([
    Part.Circle(App.Vector(92.1, -9.5, 0), App.Vector(0, 0, 1), 3.5),
    Part.Circle(App.Vector(262.3, -9.5, 0), App.Vector(0, 0, 1), 3.5),
    Part.Circle(App.Vector(328.3, -13.3, 0), App.Vector(0, 0, 1), 3.5),
    Part.Circle(App.Vector(328.3, -74.3, 0), App.Vector(0, 0, 1), 3.5),
    Part.Circle(App.Vector(137.8, -107.3, 0), App.Vector(0, 0, 1), 3.5),
    Part.Circle(App.Vector(22.2, -9.5, 0), App.Vector(0, 0, 1), 3.5),
    Part.Circle(App.Vector(9.5, -23.5, 0), App.Vector(0, 0, 1), 3.5),
    Part.Circle(App.Vector(9.5, -103.5, 0), App.Vector(0, 0, 1), 3.5),
], False)
sketch14.addConstraint([
    Sketcher.Constraint("Equal", 0, 1),
    Sketcher.Constraint("Equal", 1, 2),
    Sketcher.Constraint("Equal", 2, 3),
    Sketcher.Constraint("Equal", 3, 4),
    Sketcher.Constraint("Equal", 4, 5),
    Sketcher.Constraint("Equal", 5, 6),
    Sketcher.Constraint("Equal", 6, 7),
    Sketcher.Constraint("Horizontal", 0, 3, 1, 3),
    Sketcher.Constraint("Horizontal", 1, 3, 5, 3),
    Sketcher.Constraint("Vertical", 2, 3, 3, 3),
    Sketcher.Constraint("Vertical", 6, 3, 7, 3),
    Sketcher.Constraint("Diameter", 0, 7.0),
    Sketcher.Constraint("DistanceX", 4, 3, 3, 3, 190.5),
    Sketcher.Constraint("DistanceX", 6, 3, 5, 3, 12.7),
    Sketcher.Constraint("DistanceY", 0, 3, -1, 1, 9.54),
    Sketcher.Constraint("DistanceY", 2, 3, -1, 1, 13.35),
    Sketcher.Constraint("DistanceY", 3, 3, -1, 1, 74.31),
    Sketcher.Constraint("DistanceY", 4, 3, -1, 1, 107.33),
    Sketcher.Constraint("DistanceY", 6, 3, -1, 1, 23.51),
    Sketcher.Constraint("DistanceY", 7, 3, -1, 1, 103.52),
    Sketcher.Constraint("DistanceX", 0, 3, 1, 3, 170.18),
    Sketcher.Constraint("DistanceX", 1, 3, 2, 3, 66.04),
    Sketcher.Constraint("DistanceX", 5, 3, 0, 3, 69.85),
    Sketcher.Constraint("DistanceX", -1, 1, 0, 3, 92.088456),
])
pocket5 = body.newObject("PartDesign::Pocket", "Pocket004")
pocket5.Profile = sketch14
pocket5.Length = 4

sketch15 = body.newObject("Sketcher::SketchObject", "Sketch014")
sketch15.AttachmentSupport = (doc.getObject("XZ_Plane"), [""])
sketch15.MapMode = "FlatFace"
sketch15.AttachmentOffset = App.Placement(App.Vector(0, 0, -8), App.Rotation())
sketch15.addGeometry([
    Part.Circle(App.Vector(87.2, -113.4, 0), App.Vector(0, 0, 1), 3.1),
    Part.Circle(App.Vector(247.2, -113.4, 0), App.Vector(0, 0, 1), 3.1),
    Part.Circle(App.Vector(334.1, -98.4, 0), App.Vector(0, 0, 1), 3.1),
    Part.Circle(App.Vector(334.1, -18.4, 0), App.Vector(0, 0, 1), 3.1),
    Part.Circle(App.Vector(247.2, -3.5, 0), App.Vector(0, 0, 1), 3.1),
    Part.Circle(App.Vector(87.2, -3.5, 0), App.Vector(0, 0, 1), 3.1),
    Part.Circle(App.Vector(3.5, -18.4, 0), App.Vector(0, 0, 1), 3.1),
    Part.Circle(App.Vector(3.5, -98.4, 0), App.Vector(0, 0, 1), 3.1),
], False)
sketch15.addConstraint([
    Sketcher.Constraint("Equal", 0, 1),
    Sketcher.Constraint("Equal", 1, 2),
    Sketcher.Constraint("Equal", 2, 3),
    Sketcher.Constraint("Equal", 3, 4),
    Sketcher.Constraint("Equal", 4, 5),
    Sketcher.Constraint("Equal", 5, 6),
    Sketcher.Constraint("Equal", 6, 7),
    Sketcher.Constraint("Horizontal", 0, 3, 1, 3),
    Sketcher.Constraint("Horizontal", 4, 3, 5, 3),
    Sketcher.Constraint("Horizontal", 3, 3, 6, 3),
    Sketcher.Constraint("Horizontal", 2, 3, 7, 3),
    Sketcher.Constraint("Vertical", 2, 3, 3, 3),
    Sketcher.Constraint("Vertical", 1, 3, 4, 3),
    Sketcher.Constraint("Vertical", 0, 3, 5, 3),
    Sketcher.Constraint("Vertical", 6, 3, 7, 3),
    Sketcher.Constraint("Diameter", 0, 6.2),
    Sketcher.Constraint("DistanceX", 0, 3, 1, 3, 160.0),
    Sketcher.Constraint("DistanceY", 2, 3, 3, 3, 80.0),
    Sketcher.Constraint("DistanceX", 6, 3, 3, 3, 330.7),
    Sketcher.Constraint("DistanceX", -1, 1, 0, 3, 87.17),
    Sketcher.Constraint("DistanceY", 0, 3, -1, 1, 113.42),
    Sketcher.Constraint("DistanceX", -1, 1, 2, 3, 334.15),
    Sketcher.Constraint("DistanceY", 4, 3, -1, 1, 3.45),
    Sketcher.Constraint("DistanceY", 2, 3, -1, 1, 98.435),
])
pocket6 = body.newObject("PartDesign::Pocket", "Pocket005")
pocket6.Profile = sketch15
pocket6.Length = 2
pocket6.Reversed = True

sketch16 = body.newObject("Sketcher::SketchObject", "Sketch015")
sketch16.AttachmentSupport = (doc.getObject("XZ_Plane"), [""])
sketch16.MapMode = "FlatFace"
sketch16.AttachmentOffset = App.Placement(App.Vector(0, 0, -4), App.Rotation())
sketch16.addGeometry([
    Part.LineSegment(App.Vector(6.9, -110, 0), App.Vector(6.9, -104, 0)),
    Part.LineSegment(App.Vector(6.9, -104, 0), App.Vector(12.9, -104, 0)),
    Part.LineSegment(App.Vector(12.9, -104, 0), App.Vector(12.9, -110, 0)),
    Part.LineSegment(App.Vector(12.9, -110, 0), App.Vector(6.9, -110, 0)),
    Part.Circle(App.Vector(9.9, -107, 0), App.Vector(0, 0, 1), 1.5),
    Part.LineSegment(App.Vector(32.9, -110, 0), App.Vector(32.9, -104, 0)),
    Part.LineSegment(App.Vector(32.9, -104, 0), App.Vector(38.9, -104, 0)),
    Part.LineSegment(App.Vector(38.9, -104, 0), App.Vector(38.9, -110, 0)),
    Part.LineSegment(App.Vector(38.9, -110, 0), App.Vector(32.9, -110, 0)),
    Part.Circle(App.Vector(35.9, -107, 0), App.Vector(0, 0, 1), 1.5),
    Part.LineSegment(App.Vector(6.9, -12.9, 0), App.Vector(6.9, -6.9, 0)),
    Part.LineSegment(App.Vector(6.9, -6.9, 0), App.Vector(12.9, -6.9, 0)),
    Part.LineSegment(App.Vector(12.9, -6.9, 0), App.Vector(12.9, -12.9, 0)),
    Part.LineSegment(App.Vector(12.9, -12.9, 0), App.Vector(6.9, -12.9, 0)),
    Part.Circle(App.Vector(9.9, -9.9, 0), App.Vector(0, 0, 1), 1.5),
    Part.LineSegment(App.Vector(32.9, -12.9, 0), App.Vector(32.9, -6.9, 0)),
    Part.LineSegment(App.Vector(32.9, -6.9, 0), App.Vector(38.9, -6.9, 0)),
    Part.LineSegment(App.Vector(38.9, -6.9, 0), App.Vector(38.9, -12.9, 0)),
    Part.LineSegment(App.Vector(38.9, -12.9, 0), App.Vector(32.9, -12.9, 0)),
    Part.Circle(App.Vector(35.9, -9.9, 0), App.Vector(0, 0, 1), 1.5),
], False)
sketch16.addConstraint([
    Sketcher.Constraint("Coincident", 0, 2, 1, 1),
    Sketcher.Constraint("Coincident", 1, 2, 2, 1),
    Sketcher.Constraint("Coincident", 2, 2, 3, 1),
    Sketcher.Constraint("Coincident", 3, 2, 0, 1),
    Sketcher.Constraint("Coincident", 5, 2, 6, 1),
    Sketcher.Constraint("Coincident", 6, 2, 7, 1),
    Sketcher.Constraint("Coincident", 7, 2, 8, 1),
    Sketcher.Constraint("Coincident", 8, 2, 5, 1),
    Sketcher.Constraint("Coincident", 10, 2, 11, 1),
    Sketcher.Constraint("Coincident", 11, 2, 12, 1),
    Sketcher.Constraint("Coincident", 12, 2, 13, 1),
    Sketcher.Constraint("Coincident", 13, 2, 10, 1),
    Sketcher.Constraint("Coincident", 15, 2, 16, 1),
    Sketcher.Constraint("Coincident", 16, 2, 17, 1),
    Sketcher.Constraint("Coincident", 17, 2, 18, 1),
    Sketcher.Constraint("Coincident", 18, 2, 15, 1),
    Sketcher.Constraint("Vertical", 0),
    Sketcher.Constraint("Horizontal", 1),
    Sketcher.Constraint("Vertical", 2),
    Sketcher.Constraint("Horizontal", 3),
    Sketcher.Constraint("Vertical", 5),
    Sketcher.Constraint("Horizontal", 6),
    Sketcher.Constraint("Vertical", 7),
    Sketcher.Constraint("Horizontal", 8),
    Sketcher.Constraint("Vertical", 10),
    Sketcher.Constraint("Horizontal", 11),
    Sketcher.Constraint("Vertical", 12),
    Sketcher.Constraint("Horizontal", 13),
    Sketcher.Constraint("Vertical", 15),
    Sketcher.Constraint("Horizontal", 16),
    Sketcher.Constraint("Vertical", 17),
    Sketcher.Constraint("Horizontal", 18),
    Sketcher.Constraint("Equal", 4, 9),
    Sketcher.Constraint("Equal", 9, 14),
    Sketcher.Constraint("Equal", 14, 19),
    Sketcher.Constraint("Horizontal", 4, 3, 9, 3),
    Sketcher.Constraint("Horizontal", 14, 3, 19, 3),
    Sketcher.Constraint("Horizontal", 1, 2, 5, 2),
    Sketcher.Constraint("Horizontal", 3, 2, 7, 2),
    Sketcher.Constraint("Horizontal", 11, 2, 15, 2),
    Sketcher.Constraint("Horizontal", 13, 2, 17, 2),
    Sketcher.Constraint("Vertical", 4, 3, 14, 3),
    Sketcher.Constraint("Vertical", 9, 3, 19, 3),
    Sketcher.Constraint("Vertical", 3, 2, 10, 2),
    Sketcher.Constraint("Vertical", 2, 2, 11, 2),
    Sketcher.Constraint("Vertical", 8, 2, 15, 2),
    Sketcher.Constraint("Vertical", 7, 2, 16, 2),
    Sketcher.Constraint("Equal", 3, 6),
    Sketcher.Constraint("Equal", 18, 0),
    Sketcher.Constraint("Equal", 7, 10),
    Sketcher.Constraint("Diameter", 4, 3.0),
    Sketcher.Constraint("DistanceX", 1, 1, 1, 2, 6.0),
    Sketcher.Constraint("DistanceX", 4, 3, 9, 3, 26.0),
    Sketcher.Constraint("DistanceX", 0, 2, 4, 3, 3.0),
    Sketcher.Constraint("DistanceY", 4, 3, 0, 2, 3.0),
    Sketcher.Constraint("DistanceX", 5, 2, 9, 3, 3.0),
    Sketcher.Constraint("DistanceY", 14, 3, 10, 2, 3.0),
    Sketcher.Constraint("DistanceX", -1, 1, 4, 3, 9.9),
    Sketcher.Constraint("DistanceY", 14, 3, -1, 1, 9.9),
    Sketcher.Constraint("DistanceY", 4, 3, -1, 1, 106.97),
])
pad9 = body.newObject("PartDesign::Pad", "Pad008")
pad9.Profile = sketch16
pad9.Type = "TwoLengths"
pad9.Length = 2
pad9.Length2 = 3
pad9.Reversed = True

sketch17 = body.newObject("Sketcher::SketchObject", "Sketch016")
sketch17.AttachmentSupport = (doc.getObject("YZ_Plane"), [""])
sketch17.MapMode = "FlatFace"
sketch17.addGeometry([
    Part.LineSegment(App.Vector(1.5, -68.4, 0), App.Vector(0, -68.4, 0)),
    Part.LineSegment(App.Vector(0, -68.4, 0), App.Vector(0, -43.4, 0)),
    Part.LineSegment(App.Vector(0, -43.4, 0), App.Vector(1.5, -43.4, 0)),
    Part.LineSegment(App.Vector(1.5, -43.4, 0), App.Vector(1.5, -68.4, 0)),
], False)
sketch17.addConstraint([
    Sketcher.Constraint("Coincident", 0, 2, 1, 1),
    Sketcher.Constraint("Coincident", 1, 2, 2, 1),
    Sketcher.Constraint("Coincident", 2, 2, 3, 1),
    Sketcher.Constraint("Coincident", 3, 2, 0, 1),
    Sketcher.Constraint("Horizontal", 0),
    Sketcher.Constraint("Vertical", 1),
    Sketcher.Constraint("Horizontal", 2),
    Sketcher.Constraint("Vertical", 3),
    Sketcher.Constraint("PointOnObject", 0, 2, -2),
    Sketcher.Constraint("DistanceY", 1, 1, 1, 2, 25.0),
    Sketcher.Constraint("DistanceX", 0, 2, 0, 1, 1.5),
    Sketcher.Constraint("DistanceY", 0, 2, -1, 1, 68.435),
])
pocket7 = body.newObject("PartDesign::Pocket", "Pocket006")
pocket7.Profile = sketch17
pocket7.Length = 6.9
pocket7.Reversed = True

sketch18 = body.newObject("Sketcher::SketchObject", "Sketch017")
sketch18.AttachmentSupport = (doc.getObject("YZ_Plane"), [""])
sketch18.MapMode = "FlatFace"
sketch18.AttachmentOffset = App.Placement(App.Vector(0, 0, 337.35), App.Rotation())
sketch18.addGeometry([
    Part.LineSegment(App.Vector(0, -6.9, 0), App.Vector(-3, -6.9, 0)),
    Part.LineSegment(App.Vector(-3, -6.9, 0), App.Vector(-3, -110, 0)),
    Part.LineSegment(App.Vector(-3, -110, 0), App.Vector(0, -110, 0)),
    Part.LineSegment(App.Vector(0, -110, 0), App.Vector(0, -6.9, 0)),
], False)
sketch18.addConstraint([
    Sketcher.Constraint("Coincident", 0, 2, 1, 1),
    Sketcher.Constraint("Coincident", 1, 2, 2, 1),
    Sketcher.Constraint("Coincident", 2, 2, 3, 1),
    Sketcher.Constraint("Coincident", 3, 2, 0, 1),
    Sketcher.Constraint("Horizontal", 0),
    Sketcher.Constraint("Vertical", 1),
    Sketcher.Constraint("Horizontal", 2),
    Sketcher.Constraint("Vertical", 3),
    Sketcher.Constraint("PointOnObject", 2, 2, -2),
    Sketcher.Constraint("DistanceX", 0, 2, 0, 1, 3.0),
    Sketcher.Constraint("DistanceY", 1, 2, 1, 1, 103.07),
    Sketcher.Constraint("DistanceY", 0, 2, -1, 1, 6.9),
])
pocket8 = body.newObject("PartDesign::Pocket", "Pocket007")
pocket8.Profile = sketch18
pocket8.Type = "ThroughAll"

sketch19 = body.newObject("Sketcher::SketchObject", "Sketch018")
sketch19.AttachmentSupport = (doc.getObject("XZ_Plane"), [""])
sketch19.MapMode = "FlatFace"
sketch19.AttachmentOffset = App.Placement(App.Vector(0, 0, -8), App.Rotation())
sketch19.addGeometry([
    Part.LineSegment(App.Vector(-34, -147, 0), App.Vector(-34, 45, 0)),
    Part.LineSegment(App.Vector(-34, 45, 0), App.Vector(369, 45, 0)),
    Part.LineSegment(App.Vector(369, 45, 0), App.Vector(369, -147, 0)),
    Part.LineSegment(App.Vector(369, -147, 0), App.Vector(-34, -147, 0)),
    Part.LineSegment(App.Vector(262, 18, 0), App.Vector(72, 18, 0)),
    Part.LineSegment(App.Vector(72, 18, 0), App.Vector(72, -31, 0)),
    Part.LineSegment(App.Vector(72, -31, 0), App.Vector(262, -31, 0)),
    Part.LineSegment(App.Vector(262, -31, 0), App.Vector(262, 18, 0)),
], False)
sketch19.addConstraint([
    Sketcher.Constraint("Coincident", 0, 2, 1, 1),
    Sketcher.Constraint("Coincident", 1, 2, 2, 1),
    Sketcher.Constraint("Coincident", 2, 2, 3, 1),
    Sketcher.Constraint("Coincident", 3, 2, 0, 1),
    Sketcher.Constraint("Coincident", 4, 2, 5, 1),
    Sketcher.Constraint("Coincident", 5, 2, 6, 1),
    Sketcher.Constraint("Coincident", 6, 2, 7, 1),
    Sketcher.Constraint("Coincident", 7, 2, 4, 1),
    Sketcher.Constraint("Vertical", 0),
    Sketcher.Constraint("Horizontal", 1),
    Sketcher.Constraint("Vertical", 2),
    Sketcher.Constraint("Horizontal", 3),
    Sketcher.Constraint("Horizontal", 4),
    Sketcher.Constraint("Vertical", 5),
    Sketcher.Constraint("Horizontal", 6),
    Sketcher.Constraint("Vertical", 7),
    Sketcher.Constraint("DistanceX", 4, 2, 4, 1, 190.0),
    Sketcher.Constraint("DistanceX", -1, 1, 4, 2, 72.17),
    Sketcher.Constraint("DistanceX", 1, 1, 1, 2, 402.768514),
    Sketcher.Constraint("DistanceY", 0, 1, 0, 2, 192.082702),
    Sketcher.Constraint("DistanceY", 5, 2, 5, 1, 48.964424),
    Sketcher.Constraint("DistanceY", -1, 1, 0, 2, 45.075109),
    Sketcher.Constraint("DistanceX", -1, 1, 1, 2, 368.660639),
    Sketcher.Constraint("DistanceY", -1, 1, 4, 2, 18.27529),
])
pocket9 = body.newObject("PartDesign::Pocket", "Pocket008")
pocket9.Profile = sketch19
pocket9.Type = "ThroughAll"
pocket9.Reversed = True
doc.recompute()

chamfer = body.newObject("PartDesign::Chamfer", "Chamfer")
chamfer.Base = (pocket9, edges_at(pocket9, [(72.17, 8, -4.45), (262.17, 8, -4.45)]))
chamfer.Size = 5

doc.recompute()
